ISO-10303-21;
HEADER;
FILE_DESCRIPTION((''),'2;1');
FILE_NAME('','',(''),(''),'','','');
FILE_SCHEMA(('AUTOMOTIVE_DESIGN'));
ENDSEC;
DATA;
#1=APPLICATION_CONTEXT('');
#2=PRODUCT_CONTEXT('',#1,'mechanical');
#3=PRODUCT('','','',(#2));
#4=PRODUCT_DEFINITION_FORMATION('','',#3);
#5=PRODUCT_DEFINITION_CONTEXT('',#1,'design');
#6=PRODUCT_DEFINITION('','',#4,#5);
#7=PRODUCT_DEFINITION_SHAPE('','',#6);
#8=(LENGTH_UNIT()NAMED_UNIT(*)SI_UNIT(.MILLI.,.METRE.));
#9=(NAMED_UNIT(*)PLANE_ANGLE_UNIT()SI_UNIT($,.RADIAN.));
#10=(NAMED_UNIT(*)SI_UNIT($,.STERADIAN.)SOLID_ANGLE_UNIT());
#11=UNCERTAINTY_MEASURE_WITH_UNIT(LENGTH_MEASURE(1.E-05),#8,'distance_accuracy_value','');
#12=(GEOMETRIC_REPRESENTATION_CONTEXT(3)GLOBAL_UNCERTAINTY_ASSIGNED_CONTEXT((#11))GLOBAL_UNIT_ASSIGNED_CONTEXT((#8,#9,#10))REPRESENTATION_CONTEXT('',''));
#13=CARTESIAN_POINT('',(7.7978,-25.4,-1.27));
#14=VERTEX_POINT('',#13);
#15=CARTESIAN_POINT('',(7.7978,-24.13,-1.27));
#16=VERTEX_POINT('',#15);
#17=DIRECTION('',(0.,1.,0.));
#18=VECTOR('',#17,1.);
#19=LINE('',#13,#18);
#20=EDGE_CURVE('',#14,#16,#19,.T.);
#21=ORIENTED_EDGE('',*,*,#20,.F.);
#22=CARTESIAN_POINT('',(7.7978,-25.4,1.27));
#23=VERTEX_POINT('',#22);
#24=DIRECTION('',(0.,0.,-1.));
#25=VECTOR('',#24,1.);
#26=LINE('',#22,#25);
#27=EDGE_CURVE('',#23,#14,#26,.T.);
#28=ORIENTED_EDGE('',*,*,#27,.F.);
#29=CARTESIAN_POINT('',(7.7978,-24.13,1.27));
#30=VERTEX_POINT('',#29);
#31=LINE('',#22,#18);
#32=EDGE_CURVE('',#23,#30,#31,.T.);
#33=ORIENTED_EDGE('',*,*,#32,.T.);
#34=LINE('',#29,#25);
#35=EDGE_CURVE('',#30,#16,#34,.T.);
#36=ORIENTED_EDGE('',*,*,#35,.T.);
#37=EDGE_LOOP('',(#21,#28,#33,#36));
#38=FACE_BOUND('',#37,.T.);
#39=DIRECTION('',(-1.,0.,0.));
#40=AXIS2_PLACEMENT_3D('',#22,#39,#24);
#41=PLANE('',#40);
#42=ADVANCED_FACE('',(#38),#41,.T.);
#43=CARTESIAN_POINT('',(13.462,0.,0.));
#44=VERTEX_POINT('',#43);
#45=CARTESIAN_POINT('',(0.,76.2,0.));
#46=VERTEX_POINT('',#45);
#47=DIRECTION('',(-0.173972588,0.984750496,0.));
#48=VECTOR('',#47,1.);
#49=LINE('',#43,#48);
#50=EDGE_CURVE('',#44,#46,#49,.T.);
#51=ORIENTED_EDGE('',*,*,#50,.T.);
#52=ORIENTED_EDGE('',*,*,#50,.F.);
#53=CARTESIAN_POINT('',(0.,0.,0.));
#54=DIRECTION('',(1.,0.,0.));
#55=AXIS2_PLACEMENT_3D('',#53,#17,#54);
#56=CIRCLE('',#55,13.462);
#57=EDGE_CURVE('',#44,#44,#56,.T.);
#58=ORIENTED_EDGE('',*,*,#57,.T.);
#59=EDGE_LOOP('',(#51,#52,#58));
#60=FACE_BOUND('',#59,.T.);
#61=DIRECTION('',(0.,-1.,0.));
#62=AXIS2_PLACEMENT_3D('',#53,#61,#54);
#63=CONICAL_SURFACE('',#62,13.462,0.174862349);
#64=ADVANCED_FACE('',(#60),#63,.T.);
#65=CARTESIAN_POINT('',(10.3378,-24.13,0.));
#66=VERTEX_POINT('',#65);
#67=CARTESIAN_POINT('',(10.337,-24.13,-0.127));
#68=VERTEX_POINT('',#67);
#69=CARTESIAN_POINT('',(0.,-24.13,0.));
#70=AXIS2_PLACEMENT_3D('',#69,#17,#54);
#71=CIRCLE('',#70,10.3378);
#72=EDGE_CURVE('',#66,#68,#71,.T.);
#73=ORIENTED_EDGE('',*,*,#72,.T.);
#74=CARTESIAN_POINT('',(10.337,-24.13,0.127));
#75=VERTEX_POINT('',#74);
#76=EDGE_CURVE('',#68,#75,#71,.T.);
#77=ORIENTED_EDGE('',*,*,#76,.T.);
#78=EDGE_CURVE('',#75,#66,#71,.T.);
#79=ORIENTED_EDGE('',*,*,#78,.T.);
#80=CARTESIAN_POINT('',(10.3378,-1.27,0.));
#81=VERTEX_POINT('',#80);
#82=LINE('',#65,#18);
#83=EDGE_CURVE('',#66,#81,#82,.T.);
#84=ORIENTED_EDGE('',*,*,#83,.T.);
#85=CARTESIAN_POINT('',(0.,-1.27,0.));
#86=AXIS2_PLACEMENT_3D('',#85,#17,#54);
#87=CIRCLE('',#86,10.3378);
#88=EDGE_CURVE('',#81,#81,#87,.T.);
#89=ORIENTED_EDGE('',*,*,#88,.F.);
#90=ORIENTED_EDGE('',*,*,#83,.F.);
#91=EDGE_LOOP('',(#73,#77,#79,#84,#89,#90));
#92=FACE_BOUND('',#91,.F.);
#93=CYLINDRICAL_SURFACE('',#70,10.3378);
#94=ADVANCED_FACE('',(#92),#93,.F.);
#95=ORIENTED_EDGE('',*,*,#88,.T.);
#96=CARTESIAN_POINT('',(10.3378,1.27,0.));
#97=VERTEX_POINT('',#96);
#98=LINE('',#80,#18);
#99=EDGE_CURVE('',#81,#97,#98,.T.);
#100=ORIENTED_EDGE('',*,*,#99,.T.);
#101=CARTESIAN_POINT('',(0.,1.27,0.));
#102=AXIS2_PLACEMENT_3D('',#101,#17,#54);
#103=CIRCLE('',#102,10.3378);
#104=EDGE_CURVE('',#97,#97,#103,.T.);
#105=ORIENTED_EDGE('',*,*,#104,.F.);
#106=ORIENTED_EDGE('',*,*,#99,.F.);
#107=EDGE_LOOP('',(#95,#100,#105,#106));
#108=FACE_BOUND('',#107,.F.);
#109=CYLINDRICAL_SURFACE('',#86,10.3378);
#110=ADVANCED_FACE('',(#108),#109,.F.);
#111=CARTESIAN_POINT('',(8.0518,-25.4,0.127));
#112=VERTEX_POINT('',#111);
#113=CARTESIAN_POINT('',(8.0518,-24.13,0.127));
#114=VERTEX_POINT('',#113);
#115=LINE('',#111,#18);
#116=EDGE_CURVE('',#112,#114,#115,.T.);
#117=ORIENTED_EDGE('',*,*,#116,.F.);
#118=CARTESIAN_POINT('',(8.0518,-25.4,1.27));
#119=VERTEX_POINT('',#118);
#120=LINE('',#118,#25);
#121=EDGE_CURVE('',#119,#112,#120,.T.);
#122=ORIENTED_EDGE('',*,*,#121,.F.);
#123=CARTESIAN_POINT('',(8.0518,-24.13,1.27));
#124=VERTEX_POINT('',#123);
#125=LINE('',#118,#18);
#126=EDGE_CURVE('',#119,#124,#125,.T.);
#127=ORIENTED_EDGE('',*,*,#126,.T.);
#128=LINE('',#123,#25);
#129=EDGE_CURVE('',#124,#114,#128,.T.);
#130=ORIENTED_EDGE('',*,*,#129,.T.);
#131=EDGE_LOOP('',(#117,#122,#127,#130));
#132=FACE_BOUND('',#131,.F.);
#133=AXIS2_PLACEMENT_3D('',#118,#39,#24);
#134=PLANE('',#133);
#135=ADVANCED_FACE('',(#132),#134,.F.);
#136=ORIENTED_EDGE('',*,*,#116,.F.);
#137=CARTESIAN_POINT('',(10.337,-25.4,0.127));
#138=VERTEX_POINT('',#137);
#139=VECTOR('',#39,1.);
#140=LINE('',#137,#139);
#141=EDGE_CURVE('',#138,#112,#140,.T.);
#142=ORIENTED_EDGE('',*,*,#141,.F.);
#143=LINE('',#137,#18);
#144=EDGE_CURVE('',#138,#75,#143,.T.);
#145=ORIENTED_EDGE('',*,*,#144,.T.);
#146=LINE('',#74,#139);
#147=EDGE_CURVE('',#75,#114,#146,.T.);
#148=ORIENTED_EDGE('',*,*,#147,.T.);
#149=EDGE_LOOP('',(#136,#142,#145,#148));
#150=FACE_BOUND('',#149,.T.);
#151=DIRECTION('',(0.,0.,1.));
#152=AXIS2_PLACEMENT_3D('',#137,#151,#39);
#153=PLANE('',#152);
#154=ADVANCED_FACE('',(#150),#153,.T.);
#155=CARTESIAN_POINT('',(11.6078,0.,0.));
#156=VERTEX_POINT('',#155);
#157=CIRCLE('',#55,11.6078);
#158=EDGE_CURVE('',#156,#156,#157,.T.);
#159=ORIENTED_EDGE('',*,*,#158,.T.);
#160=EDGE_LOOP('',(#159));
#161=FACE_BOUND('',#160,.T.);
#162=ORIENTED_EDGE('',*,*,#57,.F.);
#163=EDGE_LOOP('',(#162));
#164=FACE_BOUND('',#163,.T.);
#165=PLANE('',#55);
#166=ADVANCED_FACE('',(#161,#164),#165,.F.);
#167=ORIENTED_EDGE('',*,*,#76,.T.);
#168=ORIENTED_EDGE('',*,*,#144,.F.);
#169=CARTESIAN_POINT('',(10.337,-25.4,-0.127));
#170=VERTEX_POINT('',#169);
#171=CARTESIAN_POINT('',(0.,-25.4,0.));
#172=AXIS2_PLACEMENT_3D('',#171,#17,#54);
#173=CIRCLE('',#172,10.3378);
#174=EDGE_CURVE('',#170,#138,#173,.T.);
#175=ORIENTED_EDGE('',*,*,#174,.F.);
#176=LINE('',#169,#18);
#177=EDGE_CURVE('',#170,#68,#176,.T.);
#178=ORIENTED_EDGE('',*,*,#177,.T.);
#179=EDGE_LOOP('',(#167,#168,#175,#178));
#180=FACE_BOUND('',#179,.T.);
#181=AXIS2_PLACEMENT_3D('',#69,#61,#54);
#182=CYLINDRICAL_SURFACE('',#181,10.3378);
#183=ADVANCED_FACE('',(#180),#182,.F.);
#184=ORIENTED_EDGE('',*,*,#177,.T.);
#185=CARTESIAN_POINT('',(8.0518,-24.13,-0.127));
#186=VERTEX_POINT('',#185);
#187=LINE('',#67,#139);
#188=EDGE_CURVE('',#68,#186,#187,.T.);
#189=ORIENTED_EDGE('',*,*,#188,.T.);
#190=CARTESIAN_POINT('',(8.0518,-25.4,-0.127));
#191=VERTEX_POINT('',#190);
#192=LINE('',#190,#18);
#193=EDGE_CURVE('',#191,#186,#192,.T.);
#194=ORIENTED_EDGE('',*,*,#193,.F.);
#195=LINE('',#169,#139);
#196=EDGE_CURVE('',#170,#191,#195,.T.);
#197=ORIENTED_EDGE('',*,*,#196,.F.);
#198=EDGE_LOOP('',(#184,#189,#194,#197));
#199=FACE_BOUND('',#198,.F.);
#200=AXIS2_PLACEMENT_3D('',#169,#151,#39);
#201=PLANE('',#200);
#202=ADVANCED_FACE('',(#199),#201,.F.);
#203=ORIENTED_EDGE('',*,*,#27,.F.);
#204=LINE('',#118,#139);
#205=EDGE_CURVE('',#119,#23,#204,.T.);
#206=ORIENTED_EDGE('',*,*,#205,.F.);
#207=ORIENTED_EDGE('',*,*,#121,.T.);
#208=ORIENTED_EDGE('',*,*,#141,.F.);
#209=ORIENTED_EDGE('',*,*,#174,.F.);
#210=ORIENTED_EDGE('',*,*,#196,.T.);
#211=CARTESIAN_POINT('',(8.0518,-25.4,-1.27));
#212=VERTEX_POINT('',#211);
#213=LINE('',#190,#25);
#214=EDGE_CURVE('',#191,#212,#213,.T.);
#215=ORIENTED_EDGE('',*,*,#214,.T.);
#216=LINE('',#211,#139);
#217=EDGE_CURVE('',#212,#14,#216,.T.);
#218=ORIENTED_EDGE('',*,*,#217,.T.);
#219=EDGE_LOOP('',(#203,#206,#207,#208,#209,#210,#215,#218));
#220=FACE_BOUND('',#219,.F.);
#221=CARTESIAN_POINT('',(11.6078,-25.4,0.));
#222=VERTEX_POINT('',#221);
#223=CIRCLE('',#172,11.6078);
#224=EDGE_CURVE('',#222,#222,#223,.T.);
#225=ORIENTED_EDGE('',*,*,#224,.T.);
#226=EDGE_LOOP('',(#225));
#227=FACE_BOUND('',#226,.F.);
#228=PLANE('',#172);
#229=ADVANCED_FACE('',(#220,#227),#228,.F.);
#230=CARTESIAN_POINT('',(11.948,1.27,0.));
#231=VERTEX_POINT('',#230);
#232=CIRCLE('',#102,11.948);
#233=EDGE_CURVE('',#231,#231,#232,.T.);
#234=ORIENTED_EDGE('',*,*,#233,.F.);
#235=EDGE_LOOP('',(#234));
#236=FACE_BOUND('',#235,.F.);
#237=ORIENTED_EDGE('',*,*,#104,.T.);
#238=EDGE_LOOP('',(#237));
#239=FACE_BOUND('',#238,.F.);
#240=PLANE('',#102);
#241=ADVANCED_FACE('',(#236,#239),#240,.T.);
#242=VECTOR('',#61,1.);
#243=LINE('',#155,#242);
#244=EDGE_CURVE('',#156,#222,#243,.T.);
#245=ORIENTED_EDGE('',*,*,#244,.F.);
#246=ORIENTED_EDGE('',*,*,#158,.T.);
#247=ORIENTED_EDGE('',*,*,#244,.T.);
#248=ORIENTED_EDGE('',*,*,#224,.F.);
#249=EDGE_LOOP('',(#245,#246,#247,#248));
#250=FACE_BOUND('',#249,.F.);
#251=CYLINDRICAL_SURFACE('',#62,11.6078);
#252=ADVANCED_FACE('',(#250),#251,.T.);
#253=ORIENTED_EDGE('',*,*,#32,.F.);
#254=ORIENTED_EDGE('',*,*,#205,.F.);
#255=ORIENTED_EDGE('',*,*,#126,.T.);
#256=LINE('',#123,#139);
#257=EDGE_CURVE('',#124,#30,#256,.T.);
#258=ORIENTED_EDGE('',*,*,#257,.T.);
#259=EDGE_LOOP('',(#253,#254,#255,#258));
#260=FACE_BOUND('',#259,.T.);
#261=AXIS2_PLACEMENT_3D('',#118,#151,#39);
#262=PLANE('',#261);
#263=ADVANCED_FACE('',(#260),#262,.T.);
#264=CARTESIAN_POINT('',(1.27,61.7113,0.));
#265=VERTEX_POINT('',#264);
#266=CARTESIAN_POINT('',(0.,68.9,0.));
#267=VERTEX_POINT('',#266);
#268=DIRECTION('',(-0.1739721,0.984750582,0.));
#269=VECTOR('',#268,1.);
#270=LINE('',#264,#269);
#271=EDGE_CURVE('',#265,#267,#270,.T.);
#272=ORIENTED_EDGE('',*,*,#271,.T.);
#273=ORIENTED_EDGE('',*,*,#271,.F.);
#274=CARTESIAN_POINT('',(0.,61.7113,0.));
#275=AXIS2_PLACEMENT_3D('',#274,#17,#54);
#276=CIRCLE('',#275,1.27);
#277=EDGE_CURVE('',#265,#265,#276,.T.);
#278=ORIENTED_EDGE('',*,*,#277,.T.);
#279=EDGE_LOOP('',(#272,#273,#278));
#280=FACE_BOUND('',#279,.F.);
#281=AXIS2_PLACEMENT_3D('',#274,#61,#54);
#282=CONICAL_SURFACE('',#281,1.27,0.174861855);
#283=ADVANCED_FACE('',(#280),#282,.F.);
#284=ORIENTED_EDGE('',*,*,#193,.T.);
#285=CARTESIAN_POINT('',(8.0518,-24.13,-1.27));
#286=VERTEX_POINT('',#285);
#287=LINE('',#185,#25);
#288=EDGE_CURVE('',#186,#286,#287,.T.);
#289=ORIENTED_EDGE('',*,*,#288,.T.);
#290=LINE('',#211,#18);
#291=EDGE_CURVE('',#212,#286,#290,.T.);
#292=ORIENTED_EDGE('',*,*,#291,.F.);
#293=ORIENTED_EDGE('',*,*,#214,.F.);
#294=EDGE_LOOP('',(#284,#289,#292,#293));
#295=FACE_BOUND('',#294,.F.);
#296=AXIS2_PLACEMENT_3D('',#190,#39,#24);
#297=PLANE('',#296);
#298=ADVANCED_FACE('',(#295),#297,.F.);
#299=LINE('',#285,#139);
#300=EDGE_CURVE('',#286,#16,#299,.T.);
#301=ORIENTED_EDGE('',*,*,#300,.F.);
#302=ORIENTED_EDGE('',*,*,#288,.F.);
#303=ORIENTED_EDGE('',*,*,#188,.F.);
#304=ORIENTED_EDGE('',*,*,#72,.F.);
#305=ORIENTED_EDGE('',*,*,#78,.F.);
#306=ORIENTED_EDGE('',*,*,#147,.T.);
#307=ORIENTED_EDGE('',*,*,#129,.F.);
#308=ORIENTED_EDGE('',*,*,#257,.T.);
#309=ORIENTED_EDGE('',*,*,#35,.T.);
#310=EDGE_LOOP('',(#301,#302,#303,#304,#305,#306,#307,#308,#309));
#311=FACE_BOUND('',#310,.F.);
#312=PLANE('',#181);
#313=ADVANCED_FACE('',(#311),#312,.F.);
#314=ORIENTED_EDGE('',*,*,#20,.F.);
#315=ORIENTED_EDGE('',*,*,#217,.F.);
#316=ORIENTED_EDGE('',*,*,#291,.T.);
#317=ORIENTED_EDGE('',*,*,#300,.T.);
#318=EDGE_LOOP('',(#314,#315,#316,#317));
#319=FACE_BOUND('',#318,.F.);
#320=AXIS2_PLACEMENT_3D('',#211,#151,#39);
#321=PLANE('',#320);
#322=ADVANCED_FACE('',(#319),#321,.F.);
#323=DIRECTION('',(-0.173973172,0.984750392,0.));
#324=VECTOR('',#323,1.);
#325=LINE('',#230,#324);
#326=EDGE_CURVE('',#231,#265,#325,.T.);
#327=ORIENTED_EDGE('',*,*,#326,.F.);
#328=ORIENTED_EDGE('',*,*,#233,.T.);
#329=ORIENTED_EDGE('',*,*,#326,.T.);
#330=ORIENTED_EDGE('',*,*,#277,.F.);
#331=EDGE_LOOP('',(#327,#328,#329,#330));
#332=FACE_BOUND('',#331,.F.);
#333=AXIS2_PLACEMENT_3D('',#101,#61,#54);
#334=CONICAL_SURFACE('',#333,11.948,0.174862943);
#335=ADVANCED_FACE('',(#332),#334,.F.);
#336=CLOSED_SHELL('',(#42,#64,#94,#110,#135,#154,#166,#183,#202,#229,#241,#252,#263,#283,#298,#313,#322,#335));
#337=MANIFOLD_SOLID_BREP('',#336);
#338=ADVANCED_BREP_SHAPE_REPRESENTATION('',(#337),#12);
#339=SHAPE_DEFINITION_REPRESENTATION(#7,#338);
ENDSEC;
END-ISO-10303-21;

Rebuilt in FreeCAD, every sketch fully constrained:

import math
import FreeCAD as App
import Part
import Sketcher
from FreeCAD import Vector
Q = App.Units.Quantity


def add_polygon(sketch, points):
    """Adds a closed chain of lines whose ends are joined by coincident constraints."""
    first, n = sketch.GeometryCount, len(points)
    for a, b in zip(points, points[1:] + points[:1]):
        sketch.addGeometry(Part.LineSegment(App.Vector(*a, 0), App.Vector(*b, 0)), False)
    for i in range(n):
        sketch.addConstraint(Sketcher.Constraint("Coincident", first + i, 2, first + (i + 1) % n, 1))

doc = App.newDocument("Part")
params = doc.addObject("Spreadsheet::Sheet", "Params")
for row, (alias, value) in enumerate([
    ("sketch1_height", "1 in"),
    ("sketch1_width", "0.05 in"),
    ("revolution_angle", "360 deg"),
    ("sketch2_height", "0.1 in"),
    ("sketch2_radius", "0.407 in"),
    ("sketch2_width", "0.01 in"),
    ("sketch2_height2", "0.045 in"),
    ("pad1_length", "0.05 in"),
], start=1):
    params.set(f"A{row}", alias)
    params.set(f"B{row}", "=" + value)
    params.setAlias(f"B{row}", alias)

body = doc.addObject("PartDesign::Body", "Body")

# Sketch on XY plane
sketch1 = body.newObject("Sketcher::SketchObject", "Sketch")
sketch1.AttachmentSupport = (doc.getObject("XY_Plane"), [""])
sketch1.MapMode = "FlatFace"
add_polygon(sketch1, [(0, 76.2), (0, 68.9), (1.3, 61.7), (11.9, 1.3), (10.3, 1.3), (10.3, -25.4), (11.6, -25.4), (11.6, 0), (13.5, 0)])  # lines 0-8
sketch1.addConstraint([
    Sketcher.Constraint("Vertical", 0),
    Sketcher.Constraint("Horizontal", 3),
    Sketcher.Constraint("Vertical", 4),
    Sketcher.Constraint("Horizontal", 5),
    Sketcher.Constraint("Vertical", 6),
    Sketcher.Constraint("Horizontal", 7),
    Sketcher.Constraint("PointOnObject", 0, 2, -2),
    Sketcher.Constraint("PointOnObject", 6, 2, -1),
    Sketcher.Constraint("Parallel", 1, 2),
    Sketcher.Constraint("Parallel", 2, 8),
    Sketcher.Constraint("DistanceY", 6, 1, 6, 2, Q("1 in")),
    Sketcher.Constraint("DistanceY", -1, 1, 8, 2, Q("3 in")),
    Sketcher.Constraint("DistanceX", 5, 1, 5, 2, Q("0.05 in")),
    Sketcher.Constraint("DistanceX", -1, 1, 1, 2, Q("0.05 in")),
    Sketcher.Constraint("DistanceY", -1, 1, 2, 2, Q("0.05 in")),
    Sketcher.Constraint("DistanceX", -1, 1, 7, 2, Q("0.53 in")),
    Sketcher.Constraint("DistanceX", -1, 1, 5, 2, Q("0.457 in")),
    Sketcher.Constraint("DistanceX", 3, 2, 3, 1, Q("0.0634 in")),
])
sketch1.setExpression("Constraints[19]", "Params.sketch1_height")
sketch1.setExpression("Constraints[21]", "Params.sketch1_width")
revolution = body.newObject("PartDesign::Revolution", "Revolution")
revolution.Profile = sketch1
revolution.ReferenceAxis = (sketch1, ["V_Axis"])
revolution.setExpression("Angle", "Params.revolution_angle")

# Sketch on XZ plane
sketch2 = body.newObject("Sketcher::SketchObject", "Sketch001")
sketch2.AttachmentSupport = (doc.getObject("XZ_Plane"), [""])
sketch2.MapMode = "FlatFace"
sketch2.AttachmentOffset = App.Placement(Vector(0, 0, 1 * 25.4), App.Rotation())
sketch2.addGeometry([
    Part.ArcOfCircle(Part.Circle(Vector(0, 0, 0), Vector(0, 0, 1), 10.34), math.radians(-0.7), math.radians(0.7)),  # 0
    Part.LineSegment(Vector(10.34, 0.13, 0), Vector(8.05, 0.13, 0)),  # 1
    Part.LineSegment(Vector(8.05, 0.13, 0), Vector(8.05, 1.27, 0)),  # 2
    Part.LineSegment(Vector(8.05, 1.27, 0), Vector(7.8, 1.27, 0)),  # 3
    Part.LineSegment(Vector(7.8, 1.27, 0), Vector(7.8, -1.27, 0)),  # 4
    Part.LineSegment(Vector(7.8, -1.27, 0), Vector(8.05, -1.27, 0)),  # 5
    Part.LineSegment(Vector(8.05, -1.27, 0), Vector(8.05, -0.13, 0)),  # 6
    Part.LineSegment(Vector(8.05, -0.13, 0), Vector(10.34, -0.13, 0)),  # 7
], False)
sketch2.addConstraint([
    Sketcher.Constraint("Coincident", 0, 2, 1, 1),
    Sketcher.Constraint("Coincident", 1, 2, 2, 1),
    Sketcher.Constraint("Coincident", 2, 2, 3, 1),
    Sketcher.Constraint("Coincident", 3, 2, 4, 1),
    Sketcher.Constraint("Coincident", 4, 2, 5, 1),
    Sketcher.Constraint("Coincident", 5, 2, 6, 1),
    Sketcher.Constraint("Coincident", 6, 2, 7, 1),
    Sketcher.Constraint("Coincident", 7, 2, 0, 1),
    Sketcher.Constraint("Horizontal", 1),
    Sketcher.Constraint("Vertical", 2),
    Sketcher.Constraint("Horizontal", 3),
    Sketcher.Constraint("Vertical", 4),
    Sketcher.Constraint("Horizontal", 5),
    Sketcher.Constraint("Vertical", 6),
    Sketcher.Constraint("Horizontal", 7),
    Sketcher.Constraint("Coincident", 0, 3, -1, 1),
    Sketcher.Constraint("Symmetric", 2, 2, 5, 2, -1),
    Sketcher.Constraint("Vertical", 0, 2, 7, 2),
    Sketcher.Constraint("DistanceY", 4, 2, 4, 1, Q("0.1 in")),
    Sketcher.Constraint("Radius", 0, Q("0.407 in")),
    Sketcher.Constraint("DistanceX", 3, 2, 3, 1, Q("0.01 in")),
    Sketcher.Constraint("DistanceY", 2, 1, 2, 2, Q("0.045 in")),
    Sketcher.Constraint("DistanceX", -1, 1, 1, 2, Q("0.317 in")),
])
sketch2.setExpression("Constraints[18]", "Params.sketch2_height")
sketch2.setExpression("Constraints[19]", "Params.sketch2_radius")
sketch2.setExpression("Constraints[20]", "Params.sketch2_width")
sketch2.setExpression("Constraints[21]", "Params.sketch2_height2")
pad1 = body.newObject("PartDesign::Pad", "Pad")
pad1.Profile = sketch2
pad1.setExpression("Length", "Params.pad1_length")
pad1.Reversed = True

doc.recompute()
